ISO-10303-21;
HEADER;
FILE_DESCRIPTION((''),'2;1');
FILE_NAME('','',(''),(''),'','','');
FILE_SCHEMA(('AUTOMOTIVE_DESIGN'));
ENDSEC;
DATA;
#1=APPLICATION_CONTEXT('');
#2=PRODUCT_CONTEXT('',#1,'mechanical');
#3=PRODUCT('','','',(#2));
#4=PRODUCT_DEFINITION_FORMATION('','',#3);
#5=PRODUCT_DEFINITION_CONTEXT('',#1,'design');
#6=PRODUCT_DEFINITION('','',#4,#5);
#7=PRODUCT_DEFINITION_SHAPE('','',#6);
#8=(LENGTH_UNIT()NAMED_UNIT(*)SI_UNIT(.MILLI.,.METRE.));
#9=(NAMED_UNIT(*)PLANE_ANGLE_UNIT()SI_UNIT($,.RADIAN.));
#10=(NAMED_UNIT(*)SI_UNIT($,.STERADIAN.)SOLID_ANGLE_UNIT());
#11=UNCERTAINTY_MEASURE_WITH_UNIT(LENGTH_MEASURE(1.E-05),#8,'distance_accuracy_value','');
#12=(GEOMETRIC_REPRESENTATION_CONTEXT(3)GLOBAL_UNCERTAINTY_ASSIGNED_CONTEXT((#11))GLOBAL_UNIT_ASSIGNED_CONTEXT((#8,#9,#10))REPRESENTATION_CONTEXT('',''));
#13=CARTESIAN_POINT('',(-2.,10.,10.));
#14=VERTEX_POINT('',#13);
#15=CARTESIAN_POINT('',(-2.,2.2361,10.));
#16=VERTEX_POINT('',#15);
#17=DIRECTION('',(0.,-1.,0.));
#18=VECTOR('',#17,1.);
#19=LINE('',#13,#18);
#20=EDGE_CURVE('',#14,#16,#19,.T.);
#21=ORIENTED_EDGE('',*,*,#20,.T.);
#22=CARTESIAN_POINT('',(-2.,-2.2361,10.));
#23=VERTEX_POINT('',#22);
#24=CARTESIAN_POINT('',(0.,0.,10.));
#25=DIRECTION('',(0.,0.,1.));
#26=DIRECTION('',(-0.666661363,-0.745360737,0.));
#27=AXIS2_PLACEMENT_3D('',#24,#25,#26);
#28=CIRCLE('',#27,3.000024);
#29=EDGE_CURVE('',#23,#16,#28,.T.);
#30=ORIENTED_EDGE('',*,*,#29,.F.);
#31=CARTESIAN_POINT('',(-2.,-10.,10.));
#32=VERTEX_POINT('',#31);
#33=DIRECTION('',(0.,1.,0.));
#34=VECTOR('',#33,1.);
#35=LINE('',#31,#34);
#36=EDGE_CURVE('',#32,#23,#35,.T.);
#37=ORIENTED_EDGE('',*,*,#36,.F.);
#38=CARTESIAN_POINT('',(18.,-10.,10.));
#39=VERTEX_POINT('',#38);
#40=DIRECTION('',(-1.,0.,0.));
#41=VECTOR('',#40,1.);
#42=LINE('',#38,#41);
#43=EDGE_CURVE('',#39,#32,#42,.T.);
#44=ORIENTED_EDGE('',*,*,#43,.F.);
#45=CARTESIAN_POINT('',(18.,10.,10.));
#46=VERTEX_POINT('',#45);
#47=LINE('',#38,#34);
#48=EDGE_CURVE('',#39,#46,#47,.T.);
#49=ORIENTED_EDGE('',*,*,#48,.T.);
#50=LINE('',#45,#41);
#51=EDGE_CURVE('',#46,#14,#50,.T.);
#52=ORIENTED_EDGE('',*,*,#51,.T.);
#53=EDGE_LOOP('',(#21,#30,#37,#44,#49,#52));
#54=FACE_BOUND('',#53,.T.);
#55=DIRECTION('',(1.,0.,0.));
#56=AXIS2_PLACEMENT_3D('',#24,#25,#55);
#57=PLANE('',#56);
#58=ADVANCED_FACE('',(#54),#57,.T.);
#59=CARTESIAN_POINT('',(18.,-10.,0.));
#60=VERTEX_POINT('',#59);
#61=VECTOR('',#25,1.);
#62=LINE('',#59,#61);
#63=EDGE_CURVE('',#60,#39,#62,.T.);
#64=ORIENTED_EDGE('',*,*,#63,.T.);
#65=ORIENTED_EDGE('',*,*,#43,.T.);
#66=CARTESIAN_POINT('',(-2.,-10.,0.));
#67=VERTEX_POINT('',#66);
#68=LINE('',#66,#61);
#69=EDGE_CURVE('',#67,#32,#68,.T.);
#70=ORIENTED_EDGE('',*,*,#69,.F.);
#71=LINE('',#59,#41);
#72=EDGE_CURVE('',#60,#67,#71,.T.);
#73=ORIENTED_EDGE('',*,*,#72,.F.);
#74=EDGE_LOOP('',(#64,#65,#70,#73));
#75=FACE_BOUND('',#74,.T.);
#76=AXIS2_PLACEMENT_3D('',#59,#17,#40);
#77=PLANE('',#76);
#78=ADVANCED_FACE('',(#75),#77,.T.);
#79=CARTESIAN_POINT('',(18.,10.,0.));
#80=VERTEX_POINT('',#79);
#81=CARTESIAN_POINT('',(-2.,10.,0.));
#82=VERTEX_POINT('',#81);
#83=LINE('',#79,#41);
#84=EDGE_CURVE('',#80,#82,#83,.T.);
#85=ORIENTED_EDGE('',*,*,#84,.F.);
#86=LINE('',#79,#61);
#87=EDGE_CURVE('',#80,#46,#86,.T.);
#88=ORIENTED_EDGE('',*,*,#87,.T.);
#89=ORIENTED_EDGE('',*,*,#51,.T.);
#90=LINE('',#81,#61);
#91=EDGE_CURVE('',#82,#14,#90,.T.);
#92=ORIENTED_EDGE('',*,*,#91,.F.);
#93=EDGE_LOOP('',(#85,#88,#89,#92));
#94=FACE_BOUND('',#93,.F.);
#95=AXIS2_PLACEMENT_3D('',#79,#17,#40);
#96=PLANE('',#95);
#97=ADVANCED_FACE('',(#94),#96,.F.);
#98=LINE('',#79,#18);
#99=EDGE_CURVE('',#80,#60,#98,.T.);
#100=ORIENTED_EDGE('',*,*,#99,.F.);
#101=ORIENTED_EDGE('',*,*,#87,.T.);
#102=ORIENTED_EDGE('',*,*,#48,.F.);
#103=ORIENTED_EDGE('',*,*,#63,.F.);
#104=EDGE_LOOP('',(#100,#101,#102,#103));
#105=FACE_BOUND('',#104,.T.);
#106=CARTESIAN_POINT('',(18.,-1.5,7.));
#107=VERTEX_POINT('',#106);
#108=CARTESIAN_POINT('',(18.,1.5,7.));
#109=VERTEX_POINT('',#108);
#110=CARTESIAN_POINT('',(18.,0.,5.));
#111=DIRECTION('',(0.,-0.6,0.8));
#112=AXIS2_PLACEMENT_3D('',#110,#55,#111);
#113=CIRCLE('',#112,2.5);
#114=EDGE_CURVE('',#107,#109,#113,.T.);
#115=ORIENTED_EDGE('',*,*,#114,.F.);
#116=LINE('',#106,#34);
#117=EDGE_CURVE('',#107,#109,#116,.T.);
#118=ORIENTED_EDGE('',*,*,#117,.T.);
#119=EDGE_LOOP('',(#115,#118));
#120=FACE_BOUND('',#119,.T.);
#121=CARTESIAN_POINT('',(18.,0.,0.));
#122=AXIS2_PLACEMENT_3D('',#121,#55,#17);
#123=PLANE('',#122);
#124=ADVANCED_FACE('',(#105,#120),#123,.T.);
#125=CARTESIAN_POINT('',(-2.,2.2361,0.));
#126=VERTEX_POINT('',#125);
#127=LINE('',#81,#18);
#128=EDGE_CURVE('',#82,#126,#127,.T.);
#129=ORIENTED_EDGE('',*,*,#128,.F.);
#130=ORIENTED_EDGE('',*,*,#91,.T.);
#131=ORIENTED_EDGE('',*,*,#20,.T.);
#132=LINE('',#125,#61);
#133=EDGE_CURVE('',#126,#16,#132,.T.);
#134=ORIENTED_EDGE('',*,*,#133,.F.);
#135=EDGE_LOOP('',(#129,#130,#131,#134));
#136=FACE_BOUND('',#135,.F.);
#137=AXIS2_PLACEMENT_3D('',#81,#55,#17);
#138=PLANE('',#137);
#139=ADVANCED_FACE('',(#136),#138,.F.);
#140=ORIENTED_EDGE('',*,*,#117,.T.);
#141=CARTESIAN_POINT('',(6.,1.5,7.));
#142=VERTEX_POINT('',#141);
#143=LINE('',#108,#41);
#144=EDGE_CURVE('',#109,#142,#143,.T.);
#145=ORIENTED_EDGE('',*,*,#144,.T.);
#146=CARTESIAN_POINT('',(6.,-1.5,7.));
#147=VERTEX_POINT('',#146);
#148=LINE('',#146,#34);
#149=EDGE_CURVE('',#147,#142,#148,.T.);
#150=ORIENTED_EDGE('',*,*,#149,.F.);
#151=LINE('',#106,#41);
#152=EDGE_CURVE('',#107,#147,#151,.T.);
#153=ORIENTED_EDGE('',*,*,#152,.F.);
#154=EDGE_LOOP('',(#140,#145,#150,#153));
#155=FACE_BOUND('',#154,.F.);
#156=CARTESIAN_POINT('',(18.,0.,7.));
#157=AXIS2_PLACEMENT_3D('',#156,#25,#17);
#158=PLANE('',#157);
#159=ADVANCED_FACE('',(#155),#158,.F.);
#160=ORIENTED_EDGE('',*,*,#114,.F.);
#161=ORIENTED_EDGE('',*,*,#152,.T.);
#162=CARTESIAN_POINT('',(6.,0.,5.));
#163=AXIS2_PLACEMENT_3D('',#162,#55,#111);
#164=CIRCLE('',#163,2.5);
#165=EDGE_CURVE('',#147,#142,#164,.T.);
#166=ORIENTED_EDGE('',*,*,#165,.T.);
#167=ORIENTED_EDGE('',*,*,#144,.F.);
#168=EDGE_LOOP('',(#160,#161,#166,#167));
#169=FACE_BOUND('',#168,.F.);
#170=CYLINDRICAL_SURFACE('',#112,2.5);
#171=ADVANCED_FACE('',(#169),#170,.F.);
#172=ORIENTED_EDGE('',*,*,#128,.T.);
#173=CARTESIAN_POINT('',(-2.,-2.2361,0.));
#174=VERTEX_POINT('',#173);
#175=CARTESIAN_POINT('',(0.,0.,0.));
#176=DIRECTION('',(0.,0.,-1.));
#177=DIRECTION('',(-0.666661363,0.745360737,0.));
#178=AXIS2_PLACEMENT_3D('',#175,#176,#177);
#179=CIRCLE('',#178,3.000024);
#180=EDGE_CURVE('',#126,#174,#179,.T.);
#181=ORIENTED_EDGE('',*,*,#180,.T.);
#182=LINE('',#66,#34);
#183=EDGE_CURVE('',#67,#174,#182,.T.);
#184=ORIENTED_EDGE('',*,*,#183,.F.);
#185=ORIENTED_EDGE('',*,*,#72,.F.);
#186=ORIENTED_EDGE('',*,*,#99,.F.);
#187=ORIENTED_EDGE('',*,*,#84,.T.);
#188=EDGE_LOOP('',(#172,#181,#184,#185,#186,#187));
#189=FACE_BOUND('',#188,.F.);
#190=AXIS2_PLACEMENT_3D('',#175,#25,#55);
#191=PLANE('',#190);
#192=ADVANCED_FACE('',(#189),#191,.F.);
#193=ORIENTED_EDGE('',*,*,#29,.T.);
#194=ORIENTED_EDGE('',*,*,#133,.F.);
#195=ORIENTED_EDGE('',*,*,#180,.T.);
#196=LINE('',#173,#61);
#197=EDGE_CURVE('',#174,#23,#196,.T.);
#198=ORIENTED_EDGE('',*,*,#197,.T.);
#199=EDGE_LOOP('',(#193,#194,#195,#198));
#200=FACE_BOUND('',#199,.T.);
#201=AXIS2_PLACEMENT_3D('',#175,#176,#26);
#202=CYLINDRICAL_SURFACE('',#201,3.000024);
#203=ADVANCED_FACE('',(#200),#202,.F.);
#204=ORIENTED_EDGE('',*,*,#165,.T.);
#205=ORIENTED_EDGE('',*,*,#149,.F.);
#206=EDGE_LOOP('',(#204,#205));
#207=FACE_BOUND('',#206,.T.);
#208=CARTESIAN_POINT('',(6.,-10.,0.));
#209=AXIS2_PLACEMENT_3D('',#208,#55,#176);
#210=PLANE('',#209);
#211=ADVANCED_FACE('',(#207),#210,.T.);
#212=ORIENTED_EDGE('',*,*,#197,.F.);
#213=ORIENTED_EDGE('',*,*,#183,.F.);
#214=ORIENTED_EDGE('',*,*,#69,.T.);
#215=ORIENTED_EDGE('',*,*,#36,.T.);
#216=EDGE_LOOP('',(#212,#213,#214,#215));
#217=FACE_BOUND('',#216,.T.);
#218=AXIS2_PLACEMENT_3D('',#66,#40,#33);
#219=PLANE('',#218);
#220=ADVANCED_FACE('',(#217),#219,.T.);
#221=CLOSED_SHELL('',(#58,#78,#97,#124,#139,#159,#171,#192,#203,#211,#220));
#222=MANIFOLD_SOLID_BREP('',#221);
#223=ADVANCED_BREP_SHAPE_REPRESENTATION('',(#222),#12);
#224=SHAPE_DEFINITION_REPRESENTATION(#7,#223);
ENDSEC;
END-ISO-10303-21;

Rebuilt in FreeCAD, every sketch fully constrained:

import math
import FreeCAD as App
import Part
import Sketcher

V = App.Vector
Q = App.Units.Quantity

doc = App.newDocument("Part")
body = doc.addObject("PartDesign::Body", "Body")

# Sketch on XY plane
sketch1 = doc.addObject("Sketcher::SketchObject", "Sketch")
body.addObject(sketch1)
sketch1.AttachmentSupport = (doc.XY_Plane, [""])
sketch1.MapMode = "FlatFace"
sketch1.addGeometry([
    Part.LineSegment(V(-2, -2.2361, 0), V(-2, -10, 0)),  # 0
    Part.LineSegment(V(-2, -10, 0), V(18, -10, 0)),  # 1
    Part.LineSegment(V(18, -10, 0), V(18, 10, 0)),  # 2
    Part.LineSegment(V(18, 10, 0), V(-2, 10, 0)),  # 3
    Part.LineSegment(V(-2, 10, 0), V(-2, 2.2361, 0)),  # 4
    Part.ArcOfCircle(Part.Circle(V(0, 0, 0), V(0, 0, 1), 3.000024), math.radians(-131.809907), math.radians(131.809907)),  # 5
], False)
sketch1.addConstraint([
    Sketcher.Constraint("Coincident", 0, 2, 1, 1),
    Sketcher.Constraint("Coincident", 1, 2, 2, 1),
    Sketcher.Constraint("Coincident", 2, 2, 3, 1),
    Sketcher.Constraint("Coincident", 3, 2, 4, 1),
    Sketcher.Constraint("Coincident", 4, 2, 5, 2),
    Sketcher.Constraint("Coincident", 5, 1, 0, 1),
    Sketcher.Constraint("Vertical", 0),
    Sketcher.Constraint("Horizontal", 1),
    Sketcher.Constraint("Vertical", 2),
    Sketcher.Constraint("Horizontal", 3),
    Sketcher.Constraint("Vertical", 4),
    Sketcher.Constraint("Coincident", 5, 3, -1, 1),
    Sketcher.Constraint("Symmetric", 0, 2, 3, 2, -1),
    Sketcher.Constraint("Equal", 3, 2),
    Sketcher.Constraint("Radius", 5, Q("3 mm")),
    Sketcher.Constraint("DistanceX", 1, 1, 1, 2, Q("20 mm")),
    Sketcher.Constraint("DistanceX", 0, 2, -1, 1, Q("2 mm")),
])
pad1 = doc.addObject("PartDesign::Pad", "Pad")
body.addObject(pad1)
pad1.Profile = sketch1
pad1.Length = 10

# Sketch on YZ plane
sketch2 = doc.addObject("Sketcher::SketchObject", "Sketch001")
body.addObject(sketch2)
sketch2.AttachmentSupport = (doc.YZ_Plane, [""])
sketch2.MapMode = "FlatFace"
sketch2.AttachmentOffset = App.Placement(V(0, 0, 18), App.Rotation())
sketch2.addGeometry([
    Part.LineSegment(V(1.5, 7, 0), V(-1.5, 7, 0)),
    Part.ArcOfCircle(Part.Circle(V(0, 5, 0), V(0, 0, 1), 2.5), math.radians(126.869898), math.radians(413.130102)),
], False)
sketch2.addConstraint([
    Sketcher.Constraint("Coincident", 0, 1, 1, 2),
    Sketcher.Constraint("Coincident", 1, 1, 0, 2),
    Sketcher.Constraint("Horizontal", 0),
    Sketcher.Constraint("PointOnObject", 1, 3, -2),
    Sketcher.Constraint("Radius", 1, Q("2.5 mm")),
    Sketcher.Constraint("DistanceY", -1, 1, 1, 3, Q("5 mm")),
    Sketcher.Constraint("DistanceX", 0, 2, 0, 1, Q("3 mm")),
])
pocket1 = doc.addObject("PartDesign::Pocket", "Pocket")
body.addObject(pocket1)
pocket1.Profile = sketch2
pocket1.Length = 12

doc.recompute()
